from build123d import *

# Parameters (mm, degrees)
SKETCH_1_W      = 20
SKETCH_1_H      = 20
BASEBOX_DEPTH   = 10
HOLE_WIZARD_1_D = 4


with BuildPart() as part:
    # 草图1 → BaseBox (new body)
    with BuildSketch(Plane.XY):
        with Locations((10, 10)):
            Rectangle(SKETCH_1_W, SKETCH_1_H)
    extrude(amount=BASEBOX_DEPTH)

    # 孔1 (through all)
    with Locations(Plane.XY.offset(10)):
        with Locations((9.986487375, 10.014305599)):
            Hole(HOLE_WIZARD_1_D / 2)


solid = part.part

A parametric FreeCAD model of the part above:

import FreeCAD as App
import Part
import Sketcher


def add_polygon(sketch, points):
    """Adds a closed chain of lines whose ends are joined by coincident constraints."""
    first, n = sketch.GeometryCount, len(points)
    for a, b in zip(points, points[1:] + points[:1]):
        sketch.addGeometry(Part.LineSegment(App.Vector(*a, 0), App.Vector(*b, 0)), False)
    for i in range(n):
        sketch.addConstraint(Sketcher.Constraint("Coincident", first + i, 2, first + (i + 1) % n, 1))

doc = App.newDocument("Part")
body = doc.addObject("PartDesign::Body", "Body")

# Sketch on XY plane
sketch1 = doc.addObject("Sketcher::SketchObject", "Sketch")
body.addObject(sketch1)
sketch1.AttachmentSupport = (doc.XY_Plane, [""])
sketch1.MapMode = "FlatFace"
add_polygon(sketch1, [(0, 20), (0, 0), (20, 0), (20, 20)])  # lines 0-3
sketch1.addConstraint([
    Sketcher.Constraint("Vertical", 0),
    Sketcher.Constraint("Horizontal", 1),
    Sketcher.Constraint("Vertical", 2),
    Sketcher.Constraint("Horizontal", 3),
    Sketcher.Constraint("Coincident", 0, 2, -1, 1),
    Sketcher.Constraint("Equal", 3, 0),
    Sketcher.Constraint("DistanceX", 1, 1, 1, 2, 20.0),
])
pad1 = doc.addObject("PartDesign::Pad", "Pad")
body.addObject(pad1)
pad1.Profile = sketch1
pad1.Length = 10

# Sketch on XY plane
sketch2 = doc.addObject("Sketcher::SketchObject", "Sketch001")
body.addObject(sketch2)
sketch2.AttachmentSupport = (doc.XY_Plane, [""])
sketch2.MapMode = "FlatFace"
sketch2.AttachmentOffset = App.Placement(App.Vector(0, 0, 10), App.Rotation())
sketch2.addGeometry(Part.Circle(App.Vector(10, 10, 0), App.Vector(0, 0, 1), 2), False)
sketch2.addConstraint([
    Sketcher.Constraint("Diameter", 0, 4.0),
    Sketcher.Constraint("DistanceX", -1, 1, 0, 3, 9.986487),
    Sketcher.Constraint("DistanceY", -1, 1, 0, 3, 10.014306),
])
doc.recompute()
hole = doc.addObject("PartDesign::Hole", "Hole")
body.addObject(hole)
hole.Profile = sketch2
hole.ThreadType = "None"
hole.Diameter = 4
hole.DepthType = "ThroughAll"

doc.recompute()
